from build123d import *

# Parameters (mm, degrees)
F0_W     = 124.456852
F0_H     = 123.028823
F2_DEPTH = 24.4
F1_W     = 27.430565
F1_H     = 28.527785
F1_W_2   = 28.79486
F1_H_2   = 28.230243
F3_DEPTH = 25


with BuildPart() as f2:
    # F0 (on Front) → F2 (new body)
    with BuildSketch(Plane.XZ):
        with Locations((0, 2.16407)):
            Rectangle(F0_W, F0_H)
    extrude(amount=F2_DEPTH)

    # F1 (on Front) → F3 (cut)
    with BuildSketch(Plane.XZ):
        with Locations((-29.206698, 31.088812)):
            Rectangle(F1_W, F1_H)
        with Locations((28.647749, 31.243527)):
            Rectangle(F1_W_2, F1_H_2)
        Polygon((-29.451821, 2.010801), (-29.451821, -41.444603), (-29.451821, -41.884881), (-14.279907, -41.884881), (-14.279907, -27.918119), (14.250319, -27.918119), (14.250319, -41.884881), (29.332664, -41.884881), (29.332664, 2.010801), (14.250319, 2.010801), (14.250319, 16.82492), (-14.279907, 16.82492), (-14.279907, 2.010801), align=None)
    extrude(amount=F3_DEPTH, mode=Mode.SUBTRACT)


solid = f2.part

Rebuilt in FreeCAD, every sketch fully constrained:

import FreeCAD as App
import Part
import Sketcher
from FreeCAD import Vector


def add_polygon(sketch, points):
    """Adds a closed chain of lines whose ends are joined by coincident constraints."""
    first, n = sketch.GeometryCount, len(points)
    for a, b in zip(points, points[1:] + points[:1]):
        sketch.addGeometry(Part.LineSegment(App.Vector(*a, 0), App.Vector(*b, 0)), False)
    for i in range(n):
        sketch.addConstraint(Sketcher.Constraint("Coincident", first + i, 2, first + (i + 1) % n, 1))

doc = App.newDocument("Part")
body = doc.addObject("PartDesign::Body", "Body")

# Sketch on XZ plane
sketch1 = body.newObject("Sketcher::SketchObject", "Sketch")
sketch1.AttachmentSupport = (doc.getObject("XZ_Plane"), [""])
sketch1.MapMode = "FlatFace"
add_polygon(sketch1, [(-62.228426, 63.678481), (-62.228426, -59.350341), (62.228426, -59.350341), (62.228426, 63.678481)])  # lines 0-3
sketch1.addConstraint([
    Sketcher.Constraint("Vertical", 0),
    Sketcher.Constraint("Horizontal", 1),
    Sketcher.Constraint("Vertical", 2),
    Sketcher.Constraint("Horizontal", 3),
    Sketcher.Constraint("DistanceX", 1, 1, 1, 2, 124.456852),
    Sketcher.Constraint("DistanceY", 0, 2, 0, 1, 123.028823),
    Sketcher.Constraint("DistanceY", 0, 2, -1, 1, 59.350341),
    Sketcher.Constraint("DistanceX", 0, 2, -1, 1, 62.228426),
])
pad1 = body.newObject("PartDesign::Pad", "Pad")
pad1.Profile = sketch1
pad1.Length = 24.4

# Sketch on XZ plane
sketch2 = body.newObject("Sketcher::SketchObject", "Sketch001")
sketch2.AttachmentSupport = (doc.getObject("XZ_Plane"), [""])
sketch2.MapMode = "FlatFace"
add_polygon(sketch2, [(-42.92198, 45.352705), (-42.92198, 16.82492), (-15.491416, 16.82492), (-15.491416, 45.352705)])  # lines 0-3
add_polygon(sketch2, [(14.250319, 45.358649), (14.250319, 17.128405), (43.045179, 17.128405), (43.045179, 45.358649)])  # lines 4-7
add_polygon(sketch2, [(-29.451821, 2.010801), (-29.451821, -41.884881), (-14.279907, -41.884881), (-14.279907, -27.918119), (14.250319, -27.918119), (14.250319, -41.884881), (29.332664, -41.884881), (29.332664, 2.010801), (14.250319, 2.010801), (14.250319, 16.82492), (-14.279907, 16.82492), (-14.279907, 2.010801)])  # lines 8-19
sketch2.addConstraint([
    Sketcher.Constraint("Vertical", 0),
    Sketcher.Constraint("Horizontal", 1),
    Sketcher.Constraint("Vertical", 2),
    Sketcher.Constraint("Horizontal", 3),
    Sketcher.Constraint("Vertical", 4),
    Sketcher.Constraint("Horizontal", 5),
    Sketcher.Constraint("Vertical", 6),
    Sketcher.Constraint("Horizontal", 7),
    Sketcher.Constraint("Vertical", 8),
    Sketcher.Constraint("Horizontal", 9),
    Sketcher.Constraint("Vertical", 10),
    Sketcher.Constraint("Horizontal", 11),
    Sketcher.Constraint("Vertical", 12),
    Sketcher.Constraint("Horizontal", 13),
    Sketcher.Constraint("Vertical", 14),
    Sketcher.Constraint("Horizontal", 15),
    Sketcher.Constraint("Vertical", 16),
    Sketcher.Constraint("Horizontal", 17),
    Sketcher.Constraint("Vertical", 18),
    Sketcher.Constraint("Horizontal", 19),
    Sketcher.Constraint("Horizontal", 9, 2, 12, 2),
    Sketcher.Constraint("Horizontal", 1, 2, 16, 2),
    Sketcher.Constraint("Horizontal", 15, 2, 18, 2),
    Sketcher.Constraint("Vertical", 7, 2, 11, 2),
    Sketcher.Constraint("Vertical", 12, 2, 15, 2),
    Sketcher.Constraint("Vertical", 10, 2, 17, 2),
    Sketcher.Constraint("DistanceX", 5, 1, 5, 2, 28.79486),
    Sketcher.Constraint("DistanceY", 10, 1, 10, 2, 13.966762),
    Sketcher.Constraint("DistanceY", 16, 1, 16, 2, 14.814119),
    Sketcher.Constraint("DistanceY", -1, 1, 14, 2, 2.010801),
    Sketcher.Constraint("DistanceY", 4, 2, 2, 2, 28.224299),
    Sketcher.Constraint("DistanceX", 0, 2, 4, 2, 57.172299),
    Sketcher.Constraint("DistanceY", 8, 2, 0, 2, 58.709801),
    Sketcher.Constraint("DistanceX", 1, 1, 1, 2, 27.430565),
    Sketcher.Constraint("DistanceX", 9, 1, 9, 2, 15.171914),
    Sketcher.Constraint("DistanceX", 11, 1, 11, 2, 28.530226),
    Sketcher.Constraint("DistanceX", 13, 1, 13, 2, 15.082345),
    Sketcher.Constraint("DistanceY", 0, 2, 0, 1, 28.527785),
    Sketcher.Constraint("DistanceY", 4, 2, 4, 1, 28.230243),
    Sketcher.Constraint("DistanceX", 0, 2, -1, 1, 42.92198),
])
pocket1 = body.newObject("PartDesign::Pocket", "Pocket")
pocket1.Profile = sketch2
pocket1.Length = 25
pocket1.Reversed = True

doc.recompute()
